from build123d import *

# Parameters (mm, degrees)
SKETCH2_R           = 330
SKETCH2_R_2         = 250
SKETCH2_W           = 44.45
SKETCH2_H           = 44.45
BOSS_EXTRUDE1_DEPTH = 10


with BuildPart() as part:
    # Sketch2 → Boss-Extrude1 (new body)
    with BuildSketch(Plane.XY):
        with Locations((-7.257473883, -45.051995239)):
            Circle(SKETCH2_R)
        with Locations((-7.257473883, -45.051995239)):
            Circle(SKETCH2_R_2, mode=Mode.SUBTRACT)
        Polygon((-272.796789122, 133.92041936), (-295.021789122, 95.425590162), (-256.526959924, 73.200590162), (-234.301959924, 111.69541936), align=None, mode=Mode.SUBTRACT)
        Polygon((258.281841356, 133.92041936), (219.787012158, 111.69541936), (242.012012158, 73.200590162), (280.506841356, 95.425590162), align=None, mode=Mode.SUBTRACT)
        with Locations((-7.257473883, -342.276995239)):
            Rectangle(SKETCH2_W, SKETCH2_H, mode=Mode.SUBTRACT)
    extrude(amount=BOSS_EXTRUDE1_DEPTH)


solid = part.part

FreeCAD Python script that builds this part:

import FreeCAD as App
import Part
import Sketcher

V = App.Vector
Q = App.Units.Quantity

doc = App.newDocument("Part")
body = doc.addObject("PartDesign::Body", "Body")

# Sketch on XY plane
sketch1 = body.newObject("Sketcher::SketchObject", "Sketch")
sketch1.AttachmentSupport = (doc.getObject("XY_Plane"), [""])
sketch1.MapMode = "FlatFace"
sketch1.addGeometry([
    Part.Circle(V(-7.257474, -45.051995, 0), V(0, 0, 1), 330),  # 0
    Part.LineSegment(V(14.967526, -364.501995, 0), V(-29.482474, -364.501995, 0)),  # 1
    Part.LineSegment(V(-29.482474, -364.501995, 0), V(-29.482474, -320.051995, 0)),  # 2
    Part.LineSegment(V(-29.482474, -320.051995, 0), V(14.967526, -320.051995, 0)),  # 3
    Part.LineSegment(V(14.967526, -320.051995, 0), V(14.967526, -364.501995, 0)),  # 4
    Part.LineSegment(V(-295.021789, 95.42559, 0), V(-272.796789, 133.920419, 0)),  # 5
    Part.LineSegment(V(-272.796789, 133.920419, 0), V(-234.30196, 111.695419, 0)),  # 6
    Part.LineSegment(V(-234.30196, 111.695419, 0), V(-256.52696, 73.20059, 0)),  # 7
    Part.LineSegment(V(-256.52696, 73.20059, 0), V(-295.021789, 95.42559, 0)),  # 8
    Part.Circle(V(-7.257474, -45.051995, 0), V(0, 0, 1), 250),  # 9
    Part.LineSegment(V(219.787012, 111.695419, 0), V(258.281841, 133.920419, 0)),  # 10
    Part.LineSegment(V(258.281841, 133.920419, 0), V(280.506841, 95.42559, 0)),  # 11
    Part.LineSegment(V(280.506841, 95.42559, 0), V(242.012012, 73.20059, 0)),  # 12
    Part.LineSegment(V(242.012012, 73.20059, 0), V(219.787012, 111.695419, 0)),  # 13
], False)
sketch1.addConstraint([
    Sketcher.Constraint("Coincident", 1, 2, 2, 1),
    Sketcher.Constraint("Coincident", 2, 2, 3, 1),
    Sketcher.Constraint("Coincident", 3, 2, 4, 1),
    Sketcher.Constraint("Coincident", 4, 2, 1, 1),
    Sketcher.Constraint("Coincident", 5, 2, 6, 1),
    Sketcher.Constraint("Coincident", 6, 2, 7, 1),
    Sketcher.Constraint("Coincident", 7, 2, 8, 1),
    Sketcher.Constraint("Coincident", 8, 2, 5, 1),
    Sketcher.Constraint("Coincident", 10, 2, 11, 1),
    Sketcher.Constraint("Coincident", 11, 2, 12, 1),
    Sketcher.Constraint("Coincident", 12, 2, 13, 1),
    Sketcher.Constraint("Coincident", 13, 2, 10, 1),
    Sketcher.Constraint("Horizontal", 1),
    Sketcher.Constraint("Vertical", 2),
    Sketcher.Constraint("Horizontal", 3),
    Sketcher.Constraint("Vertical", 4),
    Sketcher.Constraint("Coincident", 9, 3, 0, 3),
    Sketcher.Constraint("Perpendicular", 5, 6),
    Sketcher.Constraint("Perpendicular", 6, 7),
    Sketcher.Constraint("Perpendicular", 7, 8),
    Sketcher.Constraint("Perpendicular", 10, 11),
    Sketcher.Constraint("Perpendicular", 11, 12),
    Sketcher.Constraint("Perpendicular", 12, 13),
    Sketcher.Constraint("Horizontal", 5, 2, 10, 2),
    Sketcher.Constraint("Horizontal", 8, 2, 11, 2),
    Sketcher.Constraint("Horizontal", 7, 2, 12, 2),
    Sketcher.Constraint("Equal", 3, 2),
    Sketcher.Constraint("Equal", 5, 6),
    Sketcher.Constraint("Equal", 8, 10),
    Sketcher.Constraint("Diameter", 0, Q("660 mm")),
    Sketcher.Constraint("Diameter", 9, Q("500 mm")),
    Sketcher.Constraint("Angle", 5, Q("60 deg")),
    Sketcher.Constraint("DistanceY", 2, 2, 0, 3, Q("275 mm")),
    Sketcher.Constraint("DistanceX", 1, 2, 1, 1, Q("44.45 mm")),
    Sketcher.Constraint("Distance", 5, Q("44.45 mm")),
    Sketcher.Constraint("DistanceX", 1, 2, 0, 3, Q("22.225 mm")),
    Sketcher.Constraint("DistanceX", 6, 2, 10, 2, Q("492.583801 mm")),
    Sketcher.Constraint("DistanceX", 5, 2, -1, 1, Q("272.796789 mm")),
    Sketcher.Constraint("DistanceY", -1, 1, 5, 2, Q("133.920419 mm")),
    Sketcher.Constraint("DistanceX", 0, 3, -1, 1, Q("7.257474 mm")),
    Sketcher.Constraint("DistanceY", 0, 3, -1, 1, Q("45.051995 mm")),
])
pad1 = body.newObject("PartDesign::Pad", "Pad")
pad1.Profile = sketch1
pad1.Length = 10

doc.recompute()
